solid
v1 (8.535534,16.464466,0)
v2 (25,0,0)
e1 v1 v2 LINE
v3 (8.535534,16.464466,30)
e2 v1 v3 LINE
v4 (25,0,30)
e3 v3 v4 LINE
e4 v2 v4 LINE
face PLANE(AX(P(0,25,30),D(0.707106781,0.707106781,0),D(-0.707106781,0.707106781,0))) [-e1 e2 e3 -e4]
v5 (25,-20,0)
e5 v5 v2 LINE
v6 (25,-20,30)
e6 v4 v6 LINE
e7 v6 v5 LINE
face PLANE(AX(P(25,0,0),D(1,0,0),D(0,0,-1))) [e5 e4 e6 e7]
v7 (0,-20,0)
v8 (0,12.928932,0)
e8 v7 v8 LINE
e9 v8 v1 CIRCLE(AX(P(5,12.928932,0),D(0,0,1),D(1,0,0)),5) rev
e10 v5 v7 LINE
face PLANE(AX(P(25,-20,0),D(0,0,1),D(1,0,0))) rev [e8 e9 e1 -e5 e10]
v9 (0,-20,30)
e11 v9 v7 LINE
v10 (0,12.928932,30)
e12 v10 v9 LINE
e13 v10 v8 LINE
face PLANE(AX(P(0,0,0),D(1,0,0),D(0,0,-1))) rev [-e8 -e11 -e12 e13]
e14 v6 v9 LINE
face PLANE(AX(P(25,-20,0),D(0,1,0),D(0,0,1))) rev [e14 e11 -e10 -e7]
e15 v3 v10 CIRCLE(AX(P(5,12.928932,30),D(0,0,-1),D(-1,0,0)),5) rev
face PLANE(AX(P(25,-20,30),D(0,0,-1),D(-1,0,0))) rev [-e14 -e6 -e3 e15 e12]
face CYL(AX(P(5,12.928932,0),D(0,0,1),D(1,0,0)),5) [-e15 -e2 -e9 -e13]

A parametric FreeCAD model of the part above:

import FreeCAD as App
import Part
import Sketcher


def edges_at(feature, points):
    """Names of the edges that pass closest to the given points."""
    edges = feature.Shape.Edges
    near = lambda p: min(range(len(edges)), key=lambda i: edges[i].distToShape(Part.Vertex(*p))[0])
    return sorted({f"Edge{near(p) + 1}" for p in points})


def add_polygon(sketch, points):
    """Adds a closed chain of lines whose ends are joined by coincident constraints."""
    first, n = sketch.GeometryCount, len(points)
    for a, b in zip(points, points[1:] + points[:1]):
        sketch.addGeometry(Part.LineSegment(App.Vector(*a, 0), App.Vector(*b, 0)), False)
    for i in range(n):
        sketch.addConstraint(Sketcher.Constraint("Coincident", first + i, 2, first + (i + 1) % n, 1))

doc = App.newDocument("Part")
body = doc.addObject("PartDesign::Body", "Body")

sketch1 = body.newObject("Sketcher::SketchObject", "Sketch")
sketch1.AttachmentSupport = (doc.getObject("YZ_Plane"), [""])
sketch1.MapMode = "FlatFace"
add_polygon(sketch1, [(0, 30), (-20, 30), (-20, 0), (0, 0)])
sketch1.addConstraint([
    Sketcher.Constraint("Horizontal", 0),
    Sketcher.Constraint("Vertical", 1),
    Sketcher.Constraint("Horizontal", 2),
    Sketcher.Constraint("Vertical", 3),
    Sketcher.Constraint("Coincident", 2, 2, -1, 1),
    Sketcher.Constraint("DistanceX", 0, 2, 0, 1, 20.0),
    Sketcher.Constraint("DistanceY", 1, 2, 1, 1, 30.0),
])
pad1 = body.newObject("PartDesign::Pad", "Pad")
pad1.Profile = sketch1
pad1.Length = 25

sketch2 = body.newObject("Sketcher::SketchObject", "Sketch001")
sketch2.AttachmentSupport = (doc.getObject("XY_Plane"), [""])
sketch2.MapMode = "FlatFace"
add_polygon(sketch2, [(0, 0), (0, 25), (25, 0)])
sketch2.addConstraint([
    Sketcher.Constraint("Vertical", 0),
    Sketcher.Constraint("Horizontal", 2),
    Sketcher.Constraint("Coincident", 2, 2, -1, 1),
    Sketcher.Constraint("Equal", 2, 0),
    Sketcher.Constraint("DistanceX", 2, 2, 2, 1, 25.0),
])
pad2 = body.newObject("PartDesign::Pad", "Pad001")
pad2.Profile = sketch2
pad2.Length = 30
doc.recompute()

fillet = body.newObject("PartDesign::Fillet", "Fillet")
fillet.Base = (pad2, edges_at(pad2, [(0, 25, 15)]))
fillet.Radius = 5

doc.recompute()
